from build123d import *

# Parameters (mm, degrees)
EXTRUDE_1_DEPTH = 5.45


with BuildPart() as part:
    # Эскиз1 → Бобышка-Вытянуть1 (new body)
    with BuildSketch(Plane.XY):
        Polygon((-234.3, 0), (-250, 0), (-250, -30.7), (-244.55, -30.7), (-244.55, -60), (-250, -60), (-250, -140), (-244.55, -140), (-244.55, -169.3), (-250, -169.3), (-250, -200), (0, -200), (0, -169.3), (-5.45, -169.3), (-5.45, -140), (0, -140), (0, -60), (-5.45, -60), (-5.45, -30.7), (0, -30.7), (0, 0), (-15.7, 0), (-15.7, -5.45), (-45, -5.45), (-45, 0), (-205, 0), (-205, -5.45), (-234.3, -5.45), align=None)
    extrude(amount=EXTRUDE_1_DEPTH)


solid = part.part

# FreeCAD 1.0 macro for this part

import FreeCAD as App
import Part
import Sketcher

V = App.Vector
Q = App.Units.Quantity


def add_polygon(sketch, points):
    """Adds a closed chain of lines whose ends are joined by coincident constraints."""
    first, n = sketch.GeometryCount, len(points)
    for a, b in zip(points, points[1:] + points[:1]):
        sketch.addGeometry(Part.LineSegment(App.Vector(*a, 0), App.Vector(*b, 0)), False)
    for i in range(n):
        sketch.addConstraint(Sketcher.Constraint("Coincident", first + i, 2, first + (i + 1) % n, 1))

doc = App.newDocument("Part")
params = doc.addObject("Spreadsheet::Sheet", "Params")
for row, (alias, value) in enumerate([
    ("sketch1_width", "250 mm"),
    ("sketch1_width2", "160 mm"),
    ("sketch1_height", "80 mm"),
    ("sketch1_width3", "15.7 mm"),
    ("sketch1_height2", "30.7 mm"),
    ("pad1_length", "5.45 mm"),
], start=1):
    params.set(f"A{row}", alias)
    params.set(f"B{row}", "=" + value)
    params.setAlias(f"B{row}", alias)

body = doc.addObject("PartDesign::Body", "Body")

sketch1 = body.newObject("Sketcher::SketchObject", "Sketch")
sketch1.AttachmentSupport = (doc.getObject("XY_Plane"), [""])
sketch1.MapMode = "FlatFace"
add_polygon(sketch1, [(-234, 0), (-250, 0), (-250, -31), (-245, -31), (-245, -60), (-250, -60), (-250, -140), (-245, -140), (-245, -169), (-250, -169), (-250, -200), (0, -200), (0, -169), (-5, -169), (-5, -140), (0, -140), (0, -60), (-5, -60), (-5, -31), (0, -31), (0, 0), (-16, 0), (-16, -5), (-45, -5), (-45, 0), (-205, 0), (-205, -5), (-234, -5)])
sketch1.addConstraint([
    Sketcher.Constraint("Horizontal", 0),
    Sketcher.Constraint("Vertical", 1),
    Sketcher.Constraint("Horizontal", 2),
    Sketcher.Constraint("Vertical", 3),
    Sketcher.Constraint("Horizontal", 4),
    Sketcher.Constraint("Vertical", 5),
    Sketcher.Constraint("Horizontal", 6),
    Sketcher.Constraint("Vertical", 7),
    Sketcher.Constraint("Horizontal", 8),
    Sketcher.Constraint("Vertical", 9),
    Sketcher.Constraint("Horizontal", 10),
    Sketcher.Constraint("Vertical", 11),
    Sketcher.Constraint("Horizontal", 12),
    Sketcher.Constraint("Vertical", 13),
    Sketcher.Constraint("Horizontal", 14),
    Sketcher.Constraint("Vertical", 15),
    Sketcher.Constraint("Horizontal", 16),
    Sketcher.Constraint("Vertical", 17),
    Sketcher.Constraint("Horizontal", 18),
    Sketcher.Constraint("Vertical", 19),
    Sketcher.Constraint("Horizontal", 20),
    Sketcher.Constraint("Vertical", 21),
    Sketcher.Constraint("Horizontal", 22),
    Sketcher.Constraint("Vertical", 23),
    Sketcher.Constraint("Horizontal", 24),
    Sketcher.Constraint("Vertical", 25),
    Sketcher.Constraint("Horizontal", 26),
    Sketcher.Constraint("Vertical", 27),
    Sketcher.Constraint("Coincident", 19, 2, -1, 1),
    Sketcher.Constraint("PointOnObject", 0, 2, -1),
    Sketcher.Constraint("PointOnObject", 10, 2, -2),
    Sketcher.Constraint("PointOnObject", 14, 2, -2),
    Sketcher.Constraint("PointOnObject", 23, 2, -1),
    Sketcher.Constraint("Horizontal", 8, 2, 11, 2),
    Sketcher.Constraint("Horizontal", 6, 2, 13, 2),
    Sketcher.Constraint("Horizontal", 4, 2, 15, 2),
    Sketcher.Constraint("Horizontal", 2, 2, 17, 2),
    Sketcher.Constraint("Horizontal", 22, 2, 25, 2),
    Sketcher.Constraint("Vertical", 1, 2, 4, 2),
    Sketcher.Constraint("Vertical", 3, 2, 6, 2),
    Sketcher.Constraint("Vertical", 5, 2, 8, 2),
    Sketcher.Constraint("Vertical", 13, 2, 16, 2),
    Sketcher.Constraint("Equal", 8, 12),
    Sketcher.Constraint("Equal", 0, 20),
    Sketcher.Constraint("Equal", 22, 26),
    Sketcher.Constraint("Equal", 26, 3),
    Sketcher.Constraint("Equal", 3, 7),
    Sketcher.Constraint("Equal", 1, 9),
    Sketcher.Constraint("Equal", 18, 21),
    Sketcher.Constraint("DistanceX", 10, 1, 10, 2, Q("250 mm")),
    Sketcher.Constraint("DistanceX", 24, 2, 24, 1, Q("160 mm")),
    Sketcher.Constraint("DistanceY", 5, 2, 5, 1, Q("80 mm")),
    Sketcher.Constraint("DistanceX", 0, 2, 0, 1, Q("15.7 mm")),
    Sketcher.Constraint("DistanceY", 1, 2, 1, 1, Q("30.7 mm")),
    Sketcher.Constraint("DistanceX", 2, 1, 2, 2, Q("5.45 mm")),
])
sketch1.setExpression("Constraints[77]", "Params.sketch1_width")
sketch1.setExpression("Constraints[78]", "Params.sketch1_width2")
sketch1.setExpression("Constraints[79]", "Params.sketch1_height")
sketch1.setExpression("Constraints[80]", "Params.sketch1_width3")
sketch1.setExpression("Constraints[81]", "Params.sketch1_height2")
pad1 = body.newObject("PartDesign::Pad", "Pad")
pad1.Profile = sketch1
pad1.setExpression("Length", "Params.pad1_length")

doc.recompute()
